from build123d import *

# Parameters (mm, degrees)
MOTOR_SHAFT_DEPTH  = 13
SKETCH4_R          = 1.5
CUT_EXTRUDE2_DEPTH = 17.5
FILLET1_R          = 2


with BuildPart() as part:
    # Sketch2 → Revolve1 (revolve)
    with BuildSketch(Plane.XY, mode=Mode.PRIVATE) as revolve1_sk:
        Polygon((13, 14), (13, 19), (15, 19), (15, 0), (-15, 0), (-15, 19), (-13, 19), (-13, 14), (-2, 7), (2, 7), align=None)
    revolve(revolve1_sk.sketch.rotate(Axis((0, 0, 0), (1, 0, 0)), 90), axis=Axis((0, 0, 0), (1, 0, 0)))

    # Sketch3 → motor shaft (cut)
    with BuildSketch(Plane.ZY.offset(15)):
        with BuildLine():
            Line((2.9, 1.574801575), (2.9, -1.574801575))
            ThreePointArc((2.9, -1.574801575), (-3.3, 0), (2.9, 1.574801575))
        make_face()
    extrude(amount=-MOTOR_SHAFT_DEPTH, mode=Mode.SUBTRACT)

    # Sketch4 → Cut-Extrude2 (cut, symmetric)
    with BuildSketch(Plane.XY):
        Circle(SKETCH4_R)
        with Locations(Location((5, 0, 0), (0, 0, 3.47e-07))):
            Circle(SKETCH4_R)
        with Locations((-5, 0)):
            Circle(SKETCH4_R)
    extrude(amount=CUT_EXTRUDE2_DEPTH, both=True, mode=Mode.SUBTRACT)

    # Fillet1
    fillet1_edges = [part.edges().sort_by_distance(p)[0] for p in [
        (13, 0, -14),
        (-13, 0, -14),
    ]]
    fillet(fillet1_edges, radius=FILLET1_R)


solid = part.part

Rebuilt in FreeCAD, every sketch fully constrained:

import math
import FreeCAD as App
import Part
import Sketcher
from FreeCAD import Vector


def edges_at(feature, points):
    """Names of the edges that pass closest to the given points."""
    edges = feature.Shape.Edges
    near = lambda p: min(range(len(edges)), key=lambda i: edges[i].distToShape(Part.Vertex(*p))[0])
    return sorted({f"Edge{near(p) + 1}" for p in points})


def add_polygon(sketch, points):
    """Adds a closed chain of lines whose ends are joined by coincident constraints."""
    first, n = sketch.GeometryCount, len(points)
    for a, b in zip(points, points[1:] + points[:1]):
        sketch.addGeometry(Part.LineSegment(App.Vector(*a, 0), App.Vector(*b, 0)), False)
    for i in range(n):
        sketch.addConstraint(Sketcher.Constraint("Coincident", first + i, 2, first + (i + 1) % n, 1))

doc = App.newDocument("Part")
body = doc.addObject("PartDesign::Body", "Body")

# Sketch on XY plane
sketch1 = body.newObject("Sketcher::SketchObject", "Sketch")
sketch1.AttachmentSupport = (doc.getObject("XY_Plane"), [""])
sketch1.MapMode = "FlatFace"
add_polygon(sketch1, [(13, 19), (13, 14), (2, 7), (-2, 7), (-13, 14), (-13, 19), (-15, 19), (-15, 0), (15, 0), (15, 19)])  # lines 0-9
sketch1.addConstraint([
    Sketcher.Constraint("Vertical", 0),
    Sketcher.Constraint("Horizontal", 2),
    Sketcher.Constraint("Vertical", 4),
    Sketcher.Constraint("Horizontal", 5),
    Sketcher.Constraint("Vertical", 6),
    Sketcher.Constraint("Horizontal", 7),
    Sketcher.Constraint("Vertical", 8),
    Sketcher.Constraint("Horizontal", 9),
    Sketcher.Constraint("Symmetric", 6, 2, 7, 2, -1, 1),
    Sketcher.Constraint("Symmetric", 0, 2, 3, 2, -2),
    Sketcher.Constraint("Horizontal", 5, 2, 8, 2),
    Sketcher.Constraint("Equal", 1, 3),
    Sketcher.Constraint("DistanceX", 2, 2, 2, 1, 4.0),
    Sketcher.Constraint("DistanceX", 5, 2, 5, 1, 2.0),
    Sketcher.Constraint("DistanceX", 7, 1, 7, 2, 30.0),
    Sketcher.Constraint("DistanceY", 0, 2, 0, 1, 5.0),
    Sketcher.Constraint("DistanceY", 6, 2, 6, 1, 19.0),
    Sketcher.Constraint("DistanceY", -1, 1, 1, 2, 7.0),
])
revolution = body.newObject("PartDesign::Revolution", "Revolution")
revolution.Profile = sketch1
revolution.ReferenceAxis = (sketch1, ["H_Axis"])
revolution.Angle = 360

# Sketch on YZ plane
sketch2 = body.newObject("Sketcher::SketchObject", "Sketch001")
sketch2.AttachmentSupport = (doc.getObject("YZ_Plane"), [""])
sketch2.MapMode = "FlatFace"
sketch2.AttachmentOffset = App.Placement(Vector(0, 0, -15), App.Rotation())
sketch2.addGeometry([
    Part.LineSegment(Vector(-1.6, 2.9, 0), Vector(1.6, 2.9, 0)),
    Part.ArcOfCircle(Part.Circle(Vector(0, 0, 0), Vector(0, 0, 1), 3.3), math.radians(119), math.radians(421)),
], False)
sketch2.addConstraint([
    Sketcher.Constraint("Coincident", 0, 1, 1, 1),
    Sketcher.Constraint("Coincident", 1, 2, 0, 2),
    Sketcher.Constraint("Horizontal", 0),
    Sketcher.Constraint("Coincident", 1, 3, -1, 1),
    Sketcher.Constraint("Radius", 1, 3.3),
    Sketcher.Constraint("DistanceY", -1, 1, 0, 1, 2.9),
])
pocket1 = body.newObject("PartDesign::Pocket", "Pocket")
pocket1.Profile = sketch2
pocket1.Length = 13
pocket1.Reversed = True

# Sketch on XY plane
sketch3 = body.newObject("Sketcher::SketchObject", "Sketch002")
sketch3.AttachmentSupport = (doc.getObject("XY_Plane"), [""])
sketch3.MapMode = "FlatFace"
sketch3.addGeometry([
    Part.Circle(Vector(0, 0, 0), Vector(0, 0, 1), 1.5),
    Part.Circle(Vector(5, 0, 0), Vector(0, 0, 1), 1.5),
    Part.Circle(Vector(-5, 0, 0), Vector(0, 0, 1), 1.5),
], False)
sketch3.addConstraint([
    Sketcher.Constraint("Coincident", 0, 3, -1, 1),
    Sketcher.Constraint("Equal", 0, 1),
    Sketcher.Constraint("Equal", 1, 2),
    Sketcher.Constraint("Symmetric", 1, 3, 2, 3, -1, 1),
    Sketcher.Constraint("PointOnObject", 1, 3, -1),
    Sketcher.Constraint("Diameter", 0, 3.0),
    Sketcher.Constraint("DistanceX", -1, 1, 1, 3, 5.0),
])
pocket2 = body.newObject("PartDesign::Pocket", "Pocket001")
pocket2.Profile = sketch3
pocket2.Length = 35
pocket2.Midplane = True
doc.recompute()

fillet = body.newObject("PartDesign::Fillet", "Fillet")
fillet.Base = (pocket2, edges_at(pocket2, [(13, 0, -14), (-13, 0, -14)]))
fillet.Radius = 2

doc.recompute()
